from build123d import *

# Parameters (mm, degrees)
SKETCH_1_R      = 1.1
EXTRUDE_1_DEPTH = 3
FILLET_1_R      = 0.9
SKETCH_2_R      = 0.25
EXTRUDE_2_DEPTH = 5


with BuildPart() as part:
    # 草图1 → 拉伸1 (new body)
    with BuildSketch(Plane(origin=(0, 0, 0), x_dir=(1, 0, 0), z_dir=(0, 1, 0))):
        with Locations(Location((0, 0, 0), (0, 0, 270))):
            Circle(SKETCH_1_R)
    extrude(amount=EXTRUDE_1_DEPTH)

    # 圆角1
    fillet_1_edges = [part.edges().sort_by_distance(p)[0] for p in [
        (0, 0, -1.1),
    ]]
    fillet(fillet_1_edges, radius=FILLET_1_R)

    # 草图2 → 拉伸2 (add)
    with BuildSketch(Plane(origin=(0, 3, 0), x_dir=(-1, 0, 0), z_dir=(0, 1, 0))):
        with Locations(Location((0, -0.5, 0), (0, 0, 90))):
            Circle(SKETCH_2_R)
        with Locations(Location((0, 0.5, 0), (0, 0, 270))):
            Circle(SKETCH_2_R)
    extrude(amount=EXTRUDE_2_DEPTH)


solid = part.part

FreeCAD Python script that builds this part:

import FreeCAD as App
import Part
import Sketcher
Q = App.Units.Quantity


def edges_at(feature, points):
    """Names of the edges that pass closest to the given points."""
    edges = feature.Shape.Edges
    near = lambda p: min(range(len(edges)), key=lambda i: edges[i].distToShape(Part.Vertex(*p))[0])
    return sorted({f"Edge{near(p) + 1}" for p in points})

doc = App.newDocument("Part")
body = doc.addObject("PartDesign::Body", "Body")

# Sketch on XZ plane
sketch1 = doc.addObject("Sketcher::SketchObject", "Sketch")
body.addObject(sketch1)
sketch1.AttachmentSupport = (doc.XZ_Plane, [""])
sketch1.MapMode = "FlatFace"
sketch1.addGeometry(Part.Circle(App.Vector(0, 0, 0), App.Vector(0, 0, 1), 1.1), False)
sketch1.addConstraint([
    Sketcher.Constraint("Coincident", 0, 3, -1, 1),
    Sketcher.Constraint("Diameter", 0, Q("2.2 mm")),
])
pad1 = doc.addObject("PartDesign::Pad", "Pad")
body.addObject(pad1)
pad1.Profile = sketch1
pad1.Length = 3
pad1.Reversed = True
doc.recompute()

fillet = doc.addObject("PartDesign::Fillet", "Fillet")
body.addObject(fillet)
fillet.Base = (pad1, edges_at(pad1, [(0, 0, -1.1)]))
fillet.Radius = 0.9

# Sketch on XZ plane
sketch2 = doc.addObject("Sketcher::SketchObject", "Sketch001")
body.addObject(sketch2)
sketch2.AttachmentSupport = (doc.XZ_Plane, [""])
sketch2.MapMode = "FlatFace"
sketch2.AttachmentOffset = App.Placement(App.Vector(0, 0, -3), App.Rotation())
sketch2.addGeometry([
    Part.Circle(App.Vector(0, -0.5, 0), App.Vector(0, 0, 1), 0.25),
    Part.Circle(App.Vector(0, 0.5, 0), App.Vector(0, 0, 1), 0.25),
], False)
sketch2.addConstraint([
    Sketcher.Constraint("Equal", 0, 1),
    Sketcher.Constraint("Symmetric", 0, 3, 1, 3, -1, 1),
    Sketcher.Constraint("PointOnObject", 0, 3, -2),
    Sketcher.Constraint("Diameter", 0, Q("0.5 mm")),
    Sketcher.Constraint("DistanceY", 0, 3, 1, 3, Q("1 mm")),
])
pad2 = doc.addObject("PartDesign::Pad", "Pad001")
body.addObject(pad2)
pad2.Profile = sketch2
pad2.Length = 5
pad2.Reversed = True

doc.recompute()
